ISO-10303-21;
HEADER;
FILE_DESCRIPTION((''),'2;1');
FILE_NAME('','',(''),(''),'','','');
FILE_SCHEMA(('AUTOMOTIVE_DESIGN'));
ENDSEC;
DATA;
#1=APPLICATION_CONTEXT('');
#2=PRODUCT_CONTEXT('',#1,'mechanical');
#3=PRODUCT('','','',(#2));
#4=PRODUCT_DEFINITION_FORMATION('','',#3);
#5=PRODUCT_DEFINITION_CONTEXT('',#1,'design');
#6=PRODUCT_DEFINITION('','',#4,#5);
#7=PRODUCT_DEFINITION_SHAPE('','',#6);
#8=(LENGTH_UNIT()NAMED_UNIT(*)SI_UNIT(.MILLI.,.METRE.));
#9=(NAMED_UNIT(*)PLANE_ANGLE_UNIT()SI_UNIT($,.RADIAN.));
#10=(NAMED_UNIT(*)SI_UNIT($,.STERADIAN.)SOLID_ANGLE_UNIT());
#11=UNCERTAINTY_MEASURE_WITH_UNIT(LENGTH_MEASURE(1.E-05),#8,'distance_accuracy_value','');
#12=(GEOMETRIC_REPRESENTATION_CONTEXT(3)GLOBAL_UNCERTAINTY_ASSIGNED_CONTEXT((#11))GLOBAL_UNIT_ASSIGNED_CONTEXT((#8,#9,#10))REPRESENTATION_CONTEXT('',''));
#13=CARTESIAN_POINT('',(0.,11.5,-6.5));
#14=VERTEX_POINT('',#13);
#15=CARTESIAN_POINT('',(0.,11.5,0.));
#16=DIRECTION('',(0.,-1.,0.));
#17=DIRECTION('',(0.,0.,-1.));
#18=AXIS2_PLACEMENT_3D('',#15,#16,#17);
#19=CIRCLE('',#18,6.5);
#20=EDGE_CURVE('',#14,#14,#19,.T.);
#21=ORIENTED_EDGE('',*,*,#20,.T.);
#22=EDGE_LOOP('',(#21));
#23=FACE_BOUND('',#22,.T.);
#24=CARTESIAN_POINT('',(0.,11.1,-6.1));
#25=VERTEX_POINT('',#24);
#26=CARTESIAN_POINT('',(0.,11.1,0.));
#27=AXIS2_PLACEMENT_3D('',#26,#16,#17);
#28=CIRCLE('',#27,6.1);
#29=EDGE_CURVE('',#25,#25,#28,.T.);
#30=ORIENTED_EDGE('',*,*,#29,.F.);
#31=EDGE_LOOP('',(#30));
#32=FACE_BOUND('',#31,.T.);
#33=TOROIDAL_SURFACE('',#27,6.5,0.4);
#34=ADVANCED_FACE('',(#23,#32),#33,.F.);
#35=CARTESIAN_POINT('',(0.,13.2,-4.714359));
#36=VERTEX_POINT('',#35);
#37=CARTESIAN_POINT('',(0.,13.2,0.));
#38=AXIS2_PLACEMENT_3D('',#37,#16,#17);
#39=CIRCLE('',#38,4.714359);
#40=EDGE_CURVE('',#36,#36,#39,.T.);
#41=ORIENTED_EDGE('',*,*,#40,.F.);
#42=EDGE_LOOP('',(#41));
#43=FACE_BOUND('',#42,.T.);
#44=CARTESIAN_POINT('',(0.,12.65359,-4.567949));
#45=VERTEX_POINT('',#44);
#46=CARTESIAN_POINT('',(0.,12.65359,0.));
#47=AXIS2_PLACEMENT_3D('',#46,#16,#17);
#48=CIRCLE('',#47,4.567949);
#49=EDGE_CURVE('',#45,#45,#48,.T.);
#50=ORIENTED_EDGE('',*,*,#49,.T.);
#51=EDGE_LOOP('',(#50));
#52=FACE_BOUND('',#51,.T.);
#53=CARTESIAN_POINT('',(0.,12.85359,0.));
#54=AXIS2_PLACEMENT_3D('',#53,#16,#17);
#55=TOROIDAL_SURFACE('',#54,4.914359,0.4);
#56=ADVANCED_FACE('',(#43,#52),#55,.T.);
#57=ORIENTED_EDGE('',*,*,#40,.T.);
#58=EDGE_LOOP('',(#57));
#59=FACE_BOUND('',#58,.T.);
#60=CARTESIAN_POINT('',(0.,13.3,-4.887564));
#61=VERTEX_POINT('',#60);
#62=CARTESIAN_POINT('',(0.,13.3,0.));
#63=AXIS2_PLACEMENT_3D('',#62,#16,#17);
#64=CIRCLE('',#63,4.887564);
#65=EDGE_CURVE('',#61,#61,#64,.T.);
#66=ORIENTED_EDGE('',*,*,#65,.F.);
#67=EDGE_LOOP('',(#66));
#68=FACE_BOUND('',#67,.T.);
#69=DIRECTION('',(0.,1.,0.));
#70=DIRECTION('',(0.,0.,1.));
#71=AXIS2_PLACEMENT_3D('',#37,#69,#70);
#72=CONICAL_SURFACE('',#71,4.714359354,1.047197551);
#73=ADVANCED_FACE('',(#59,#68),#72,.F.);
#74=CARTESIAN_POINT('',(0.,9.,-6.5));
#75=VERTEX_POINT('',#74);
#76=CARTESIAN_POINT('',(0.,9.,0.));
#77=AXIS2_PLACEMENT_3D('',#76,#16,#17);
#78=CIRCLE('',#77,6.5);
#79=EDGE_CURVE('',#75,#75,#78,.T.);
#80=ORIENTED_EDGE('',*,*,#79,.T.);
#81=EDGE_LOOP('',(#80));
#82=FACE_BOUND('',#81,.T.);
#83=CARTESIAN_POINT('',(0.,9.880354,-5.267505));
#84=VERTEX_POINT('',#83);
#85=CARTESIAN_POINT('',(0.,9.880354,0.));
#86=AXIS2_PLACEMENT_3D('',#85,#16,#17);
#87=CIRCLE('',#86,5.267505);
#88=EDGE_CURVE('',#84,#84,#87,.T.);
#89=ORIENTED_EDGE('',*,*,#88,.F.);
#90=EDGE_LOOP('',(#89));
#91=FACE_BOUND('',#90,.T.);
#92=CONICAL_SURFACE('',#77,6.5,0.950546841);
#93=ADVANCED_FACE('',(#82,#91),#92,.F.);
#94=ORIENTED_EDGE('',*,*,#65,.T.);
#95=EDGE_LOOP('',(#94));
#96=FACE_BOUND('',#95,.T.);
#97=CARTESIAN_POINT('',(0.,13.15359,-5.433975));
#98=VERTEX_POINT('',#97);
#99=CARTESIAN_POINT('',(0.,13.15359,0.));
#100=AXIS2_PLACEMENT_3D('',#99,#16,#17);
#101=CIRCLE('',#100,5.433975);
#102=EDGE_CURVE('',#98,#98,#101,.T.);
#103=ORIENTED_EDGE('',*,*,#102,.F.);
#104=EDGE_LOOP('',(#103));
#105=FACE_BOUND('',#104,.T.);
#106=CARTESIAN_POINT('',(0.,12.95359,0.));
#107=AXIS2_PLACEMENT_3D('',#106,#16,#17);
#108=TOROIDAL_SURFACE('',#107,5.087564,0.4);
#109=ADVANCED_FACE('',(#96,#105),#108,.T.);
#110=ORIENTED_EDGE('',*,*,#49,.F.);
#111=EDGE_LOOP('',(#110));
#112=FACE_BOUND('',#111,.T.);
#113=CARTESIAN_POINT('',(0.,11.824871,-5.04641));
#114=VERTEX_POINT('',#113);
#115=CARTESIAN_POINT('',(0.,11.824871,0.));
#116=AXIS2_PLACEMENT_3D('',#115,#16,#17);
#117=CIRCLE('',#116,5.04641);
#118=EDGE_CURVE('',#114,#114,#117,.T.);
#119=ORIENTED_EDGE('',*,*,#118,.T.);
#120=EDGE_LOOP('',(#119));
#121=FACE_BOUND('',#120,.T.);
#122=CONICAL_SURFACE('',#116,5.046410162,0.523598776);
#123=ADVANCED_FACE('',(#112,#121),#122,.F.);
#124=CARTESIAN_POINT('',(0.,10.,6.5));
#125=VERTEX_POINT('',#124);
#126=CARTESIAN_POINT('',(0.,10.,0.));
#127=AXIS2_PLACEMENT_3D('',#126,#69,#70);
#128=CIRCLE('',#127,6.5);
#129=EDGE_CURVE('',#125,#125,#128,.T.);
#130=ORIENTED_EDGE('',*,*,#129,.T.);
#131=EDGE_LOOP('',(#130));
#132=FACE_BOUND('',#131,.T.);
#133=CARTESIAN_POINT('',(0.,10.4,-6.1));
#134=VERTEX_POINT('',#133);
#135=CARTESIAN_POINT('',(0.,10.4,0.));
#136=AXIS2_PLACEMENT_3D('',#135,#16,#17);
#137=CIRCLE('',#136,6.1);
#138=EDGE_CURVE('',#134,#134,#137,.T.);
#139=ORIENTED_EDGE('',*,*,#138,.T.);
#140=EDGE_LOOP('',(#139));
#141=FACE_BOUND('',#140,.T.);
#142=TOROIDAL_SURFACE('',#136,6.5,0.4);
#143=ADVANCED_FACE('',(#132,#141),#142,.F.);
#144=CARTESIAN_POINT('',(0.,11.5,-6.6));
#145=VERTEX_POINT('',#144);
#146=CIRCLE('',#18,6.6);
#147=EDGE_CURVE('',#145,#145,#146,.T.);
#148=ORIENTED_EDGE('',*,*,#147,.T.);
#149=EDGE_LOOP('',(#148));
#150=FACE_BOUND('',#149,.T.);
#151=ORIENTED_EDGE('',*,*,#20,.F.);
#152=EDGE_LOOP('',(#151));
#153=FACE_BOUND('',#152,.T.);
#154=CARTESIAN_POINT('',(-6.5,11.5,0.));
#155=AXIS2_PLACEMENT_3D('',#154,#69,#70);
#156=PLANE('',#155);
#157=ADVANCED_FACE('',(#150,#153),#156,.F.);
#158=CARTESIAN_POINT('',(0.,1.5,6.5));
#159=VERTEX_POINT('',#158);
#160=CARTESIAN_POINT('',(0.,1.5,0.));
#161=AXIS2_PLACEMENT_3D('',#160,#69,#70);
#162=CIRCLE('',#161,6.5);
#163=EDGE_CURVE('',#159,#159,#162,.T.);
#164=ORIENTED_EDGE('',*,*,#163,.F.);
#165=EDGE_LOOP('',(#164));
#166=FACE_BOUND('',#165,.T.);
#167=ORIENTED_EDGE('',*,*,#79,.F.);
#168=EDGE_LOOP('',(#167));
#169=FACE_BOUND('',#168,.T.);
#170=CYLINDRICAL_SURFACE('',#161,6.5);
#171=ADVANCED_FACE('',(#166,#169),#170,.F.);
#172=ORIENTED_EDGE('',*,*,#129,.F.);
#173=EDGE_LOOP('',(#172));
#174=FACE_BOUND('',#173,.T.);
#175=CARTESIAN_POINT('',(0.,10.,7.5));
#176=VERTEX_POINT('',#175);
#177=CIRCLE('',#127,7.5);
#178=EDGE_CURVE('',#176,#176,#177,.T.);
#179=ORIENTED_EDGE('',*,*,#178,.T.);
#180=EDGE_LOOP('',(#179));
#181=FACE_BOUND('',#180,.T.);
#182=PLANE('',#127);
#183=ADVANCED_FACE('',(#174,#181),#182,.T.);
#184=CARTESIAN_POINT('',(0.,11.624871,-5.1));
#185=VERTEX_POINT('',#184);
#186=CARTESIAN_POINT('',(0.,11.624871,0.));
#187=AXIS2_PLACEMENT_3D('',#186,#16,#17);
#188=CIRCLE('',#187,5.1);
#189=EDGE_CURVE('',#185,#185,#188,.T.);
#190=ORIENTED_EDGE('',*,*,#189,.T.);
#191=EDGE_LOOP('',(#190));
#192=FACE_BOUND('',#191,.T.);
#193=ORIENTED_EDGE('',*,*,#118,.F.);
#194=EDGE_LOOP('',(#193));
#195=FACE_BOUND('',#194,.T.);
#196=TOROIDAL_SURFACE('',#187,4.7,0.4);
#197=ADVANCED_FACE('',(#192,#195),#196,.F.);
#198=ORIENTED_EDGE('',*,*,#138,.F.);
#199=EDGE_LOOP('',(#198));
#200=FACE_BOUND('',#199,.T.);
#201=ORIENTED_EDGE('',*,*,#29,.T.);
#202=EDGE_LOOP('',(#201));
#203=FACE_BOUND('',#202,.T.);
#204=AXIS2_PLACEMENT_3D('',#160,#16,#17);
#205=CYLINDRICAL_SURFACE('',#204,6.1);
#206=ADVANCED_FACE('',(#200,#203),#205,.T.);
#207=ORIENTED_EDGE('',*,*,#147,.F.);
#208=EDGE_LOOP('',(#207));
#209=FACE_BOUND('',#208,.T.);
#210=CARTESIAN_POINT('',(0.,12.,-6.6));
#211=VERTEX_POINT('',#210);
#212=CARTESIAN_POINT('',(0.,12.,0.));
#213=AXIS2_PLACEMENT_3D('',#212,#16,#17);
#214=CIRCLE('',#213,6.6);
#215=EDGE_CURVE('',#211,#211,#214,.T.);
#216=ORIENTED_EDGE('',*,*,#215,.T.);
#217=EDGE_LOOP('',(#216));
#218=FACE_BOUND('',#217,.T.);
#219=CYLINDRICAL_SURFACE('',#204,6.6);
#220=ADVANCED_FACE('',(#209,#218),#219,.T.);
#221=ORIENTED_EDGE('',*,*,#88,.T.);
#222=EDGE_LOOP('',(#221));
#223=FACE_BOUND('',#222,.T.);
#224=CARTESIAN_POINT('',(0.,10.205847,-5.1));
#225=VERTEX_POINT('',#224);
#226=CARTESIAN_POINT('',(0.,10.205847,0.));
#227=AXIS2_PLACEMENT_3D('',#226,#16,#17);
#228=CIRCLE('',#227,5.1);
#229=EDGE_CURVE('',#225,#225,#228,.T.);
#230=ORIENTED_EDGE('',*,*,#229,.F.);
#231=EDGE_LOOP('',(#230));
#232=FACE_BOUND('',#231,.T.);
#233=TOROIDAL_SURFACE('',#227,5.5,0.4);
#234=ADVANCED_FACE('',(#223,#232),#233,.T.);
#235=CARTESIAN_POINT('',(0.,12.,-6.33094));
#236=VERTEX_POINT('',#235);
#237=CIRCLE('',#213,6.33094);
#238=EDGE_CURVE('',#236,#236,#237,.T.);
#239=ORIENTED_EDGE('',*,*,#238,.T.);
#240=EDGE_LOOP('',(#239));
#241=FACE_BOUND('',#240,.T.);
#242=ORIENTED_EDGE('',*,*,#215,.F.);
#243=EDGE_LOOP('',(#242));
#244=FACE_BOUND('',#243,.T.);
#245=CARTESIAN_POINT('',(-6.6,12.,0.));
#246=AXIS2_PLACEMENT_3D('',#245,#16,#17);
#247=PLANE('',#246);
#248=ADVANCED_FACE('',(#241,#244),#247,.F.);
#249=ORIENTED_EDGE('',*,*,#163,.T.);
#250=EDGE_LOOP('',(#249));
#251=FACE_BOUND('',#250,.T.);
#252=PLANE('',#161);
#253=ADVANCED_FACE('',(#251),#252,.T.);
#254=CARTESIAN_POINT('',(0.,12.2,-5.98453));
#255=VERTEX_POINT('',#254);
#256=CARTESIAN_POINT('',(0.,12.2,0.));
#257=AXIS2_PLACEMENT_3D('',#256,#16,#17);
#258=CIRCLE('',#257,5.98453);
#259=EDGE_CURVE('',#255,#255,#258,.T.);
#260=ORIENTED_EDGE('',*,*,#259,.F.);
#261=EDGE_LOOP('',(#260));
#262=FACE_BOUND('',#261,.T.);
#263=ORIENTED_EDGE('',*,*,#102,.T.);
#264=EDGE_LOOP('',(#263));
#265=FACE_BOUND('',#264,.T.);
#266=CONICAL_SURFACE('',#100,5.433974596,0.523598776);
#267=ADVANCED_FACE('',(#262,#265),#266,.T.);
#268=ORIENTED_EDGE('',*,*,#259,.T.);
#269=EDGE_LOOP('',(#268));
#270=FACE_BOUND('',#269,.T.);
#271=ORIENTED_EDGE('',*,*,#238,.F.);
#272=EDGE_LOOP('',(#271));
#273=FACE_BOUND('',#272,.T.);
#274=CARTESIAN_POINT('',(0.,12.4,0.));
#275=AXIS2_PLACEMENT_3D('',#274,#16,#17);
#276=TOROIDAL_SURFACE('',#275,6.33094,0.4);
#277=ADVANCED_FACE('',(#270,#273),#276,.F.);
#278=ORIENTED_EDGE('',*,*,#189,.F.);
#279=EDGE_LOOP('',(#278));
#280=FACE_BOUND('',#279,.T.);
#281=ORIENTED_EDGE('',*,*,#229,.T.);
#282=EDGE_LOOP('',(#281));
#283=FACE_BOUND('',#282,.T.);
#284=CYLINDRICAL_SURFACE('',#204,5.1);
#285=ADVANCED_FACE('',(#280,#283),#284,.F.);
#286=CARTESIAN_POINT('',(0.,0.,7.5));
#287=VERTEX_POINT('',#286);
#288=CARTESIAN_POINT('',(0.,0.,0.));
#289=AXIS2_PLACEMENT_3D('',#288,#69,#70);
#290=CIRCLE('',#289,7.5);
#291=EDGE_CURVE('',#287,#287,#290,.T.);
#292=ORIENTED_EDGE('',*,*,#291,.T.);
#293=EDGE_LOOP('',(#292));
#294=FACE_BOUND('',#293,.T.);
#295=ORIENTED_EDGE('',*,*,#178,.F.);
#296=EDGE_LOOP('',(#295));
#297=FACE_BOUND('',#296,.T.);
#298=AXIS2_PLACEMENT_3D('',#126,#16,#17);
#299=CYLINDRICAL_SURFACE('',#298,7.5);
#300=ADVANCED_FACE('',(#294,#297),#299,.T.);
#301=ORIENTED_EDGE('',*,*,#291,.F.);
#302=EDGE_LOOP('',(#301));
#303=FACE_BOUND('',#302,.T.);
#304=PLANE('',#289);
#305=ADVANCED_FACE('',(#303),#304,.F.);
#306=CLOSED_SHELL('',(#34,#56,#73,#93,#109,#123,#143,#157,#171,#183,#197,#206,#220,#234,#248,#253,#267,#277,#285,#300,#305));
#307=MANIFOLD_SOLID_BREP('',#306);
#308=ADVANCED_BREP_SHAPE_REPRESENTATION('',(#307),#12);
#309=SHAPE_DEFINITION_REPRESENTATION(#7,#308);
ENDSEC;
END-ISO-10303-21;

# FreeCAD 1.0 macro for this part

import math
import FreeCAD as App
import Part
import Sketcher
Q = App.Units.Quantity

doc = App.newDocument("Part")
body = doc.addObject("PartDesign::Body", "Body")

# Sketch on XZ plane
sketch1 = body.newObject("Sketcher::SketchObject", "Sketch")
sketch1.AttachmentSupport = (doc.getObject("XZ_Plane"), [""])
sketch1.MapMode = "FlatFace"
sketch1.addGeometry(Part.Circle(App.Vector(0, 0, 0), App.Vector(0, 0, 1), 7.5), False)
sketch1.addConstraint([
    Sketcher.Constraint("Coincident", 0, 3, -1, 1),
    Sketcher.Constraint("Diameter", 0, Q("15 mm")),
])
pad1 = body.newObject("PartDesign::Pad", "Pad")
pad1.Profile = sketch1
pad1.Length = 10
pad1.Reversed = True

# Sketch on XZ plane
sketch2 = body.newObject("Sketcher::SketchObject", "Sketch001")
sketch2.AttachmentSupport = (doc.getObject("XZ_Plane"), [""])
sketch2.MapMode = "FlatFace"
sketch2.AttachmentOffset = App.Placement(App.Vector(0, 0, -10), App.Rotation())
sketch2.addGeometry(Part.Circle(App.Vector(0, 0, 0), App.Vector(0, 0, 1), 6.5), False)
sketch2.addConstraint([
    Sketcher.Constraint("Coincident", 0, 3, -1, 1),
    Sketcher.Constraint("Diameter", 0, Q("13 mm")),
])
pocket1 = body.newObject("PartDesign::Pocket", "Pocket")
pocket1.Profile = sketch2
pocket1.Length = 8.5
pocket1.Reversed = True

# Sketch on XY plane
sketch3 = body.newObject("Sketcher::SketchObject", "Sketch002")
sketch3.AttachmentSupport = (doc.getObject("XY_Plane"), [""])
sketch3.MapMode = "FlatFace"
sketch3.addGeometry([
    Part.LineSegment(App.Vector(-6.5, 10, 0), App.Vector(-7, 10, 0)),  # 0
    Part.LineSegment(App.Vector(-7, 10, 0), App.Vector(-7, 9, 0)),  # 1
    Part.LineSegment(App.Vector(-7, 9, 0), App.Vector(-6.5, 9, 0)),  # 2
    Part.LineSegment(App.Vector(-6.5, 9, 0), App.Vector(-5.267505, 9.880354, 0)),  # 3
    Part.ArcOfCircle(Part.Circle(App.Vector(-5.5, 10.205847, 0), App.Vector(0, 0, 1), 0.4), math.radians(-54.462322), math.radians(0)),  # 4
    Part.LineSegment(App.Vector(-5.1, 10.205847, 0), App.Vector(-5.1, 11.624871, 0)),  # 5
    Part.ArcOfCircle(Part.Circle(App.Vector(-4.7, 11.624871, 0), App.Vector(0, 0, 1), 0.4), math.radians(150), math.radians(180)),  # 6
    Part.LineSegment(App.Vector(-5.04641, 11.824871, 0), App.Vector(-4.567949, 12.65359, 0)),  # 7
    Part.ArcOfCircle(Part.Circle(App.Vector(-4.914359, 12.85359, 0), App.Vector(0, 0, 1), 0.4), math.radians(-30), math.radians(60)),  # 8
    Part.LineSegment(App.Vector(-4.714359, 13.2, 0), App.Vector(-4.887564, 13.3, 0)),  # 9
    Part.ArcOfCircle(Part.Circle(App.Vector(-5.087564, 12.95359, 0), App.Vector(0, 0, 1), 0.4), math.radians(60), math.radians(150)),  # 10
    Part.LineSegment(App.Vector(-5.433975, 13.15359, 0), App.Vector(-5.98453, 12.2, 0)),  # 11
    Part.ArcOfCircle(Part.Circle(App.Vector(-6.33094, 12.4, 0), App.Vector(0, 0, 1), 0.4), math.radians(-90), math.radians(-30)),  # 12
    Part.LineSegment(App.Vector(-6.33094, 12, 0), App.Vector(-6.6, 12, 0)),  # 13
    Part.LineSegment(App.Vector(-6.6, 12, 0), App.Vector(-6.6, 11.5, 0)),  # 14
    Part.LineSegment(App.Vector(-6.6, 11.5, 0), App.Vector(-6.5, 11.5, 0)),  # 15
    Part.ArcOfCircle(Part.Circle(App.Vector(-6.5, 11.1, 0), App.Vector(0, 0, 1), 0.4), math.radians(0), math.radians(90)),  # 16
    Part.LineSegment(App.Vector(-6.1, 11.1, 0), App.Vector(-6.1, 10.4, 0)),  # 17
    Part.ArcOfCircle(Part.Circle(App.Vector(-6.5, 10.4, 0), App.Vector(0, 0, 1), 0.4), math.radians(-90), math.radians(0)),  # 18
], False)
sketch3.addConstraint([
    Sketcher.Constraint("Coincident", 0, 2, 1, 1),
    Sketcher.Constraint("Coincident", 1, 2, 2, 1),
    Sketcher.Constraint("Coincident", 2, 2, 3, 1),
    Sketcher.Constraint("Tangent", 3, 2, 4, 1),
    Sketcher.Constraint("Tangent", 4, 2, 5, 1),
    Sketcher.Constraint("Tangent", 5, 2, 6, 2),
    Sketcher.Constraint("Tangent", 6, 1, 7, 1),
    Sketcher.Constraint("Tangent", 7, 2, 8, 1),
    Sketcher.Constraint("Tangent", 8, 2, 9, 1),
    Sketcher.Constraint("Tangent", 9, 2, 10, 1),
    Sketcher.Constraint("Tangent", 10, 2, 11, 1),
    Sketcher.Constraint("Tangent", 11, 2, 12, 2),
    Sketcher.Constraint("Tangent", 12, 1, 13, 1),
    Sketcher.Constraint("Coincident", 13, 2, 14, 1),
    Sketcher.Constraint("Coincident", 14, 2, 15, 1),
    Sketcher.Constraint("Tangent", 15, 2, 16, 2),
    Sketcher.Constraint("Tangent", 16, 1, 17, 1),
    Sketcher.Constraint("Tangent", 17, 2, 18, 2),
    Sketcher.Constraint("Tangent", 18, 1, 0, 1),
    Sketcher.Constraint("Horizontal", 0),
    Sketcher.Constraint("Vertical", 1),
    Sketcher.Constraint("Horizontal", 2),
    Sketcher.Constraint("Vertical", 5),
    Sketcher.Constraint("Horizontal", 13),
    Sketcher.Constraint("Vertical", 14),
    Sketcher.Constraint("Horizontal", 15),
    Sketcher.Constraint("Vertical", 17),
    Sketcher.Constraint("Equal", 4, 6),
    Sketcher.Constraint("Equal", 6, 8),
    Sketcher.Constraint("Equal", 8, 10),
    Sketcher.Constraint("Equal", 10, 12),
    Sketcher.Constraint("Equal", 12, 16),
    Sketcher.Constraint("Equal", 16, 18),
    Sketcher.Constraint("Perpendicular", 7, 9),
    Sketcher.Constraint("Perpendicular", 9, 11),
    Sketcher.Constraint("Vertical", 18, 3, 2, 2),
    Sketcher.Constraint("Equal", 2, 14),
    Sketcher.Constraint("Radius", 4, Q("0.4 mm")),
    Sketcher.Constraint("DistanceY", 1, 2, 1, 1, Q("1 mm")),
    Sketcher.Constraint("Angle", 7, Q("60 deg")),
    Sketcher.Constraint("DistanceX", 0, 2, 0, 1, Q("0.5 mm")),
    Sketcher.Constraint("DistanceX", 15, 1, 15, 2, Q("0.1 mm")),
    Sketcher.Constraint("DistanceY", 17, 2, 17, 1, Q("0.7 mm")),
    Sketcher.Constraint("DistanceX", 0, 2, -1, 1, Q("7 mm")),
    Sketcher.Constraint("DistanceY", -1, 1, 0, 2, Q("10 mm")),
    Sketcher.Constraint("DistanceX", 16, 3, 4, 3, Q("1 mm")),
    Sketcher.Constraint("Distance", 9, Q("0.2 mm")),
    Sketcher.Constraint("DistanceY", -1, 1, 8, 2, Q("13.2 mm")),
    Sketcher.Constraint("DistanceX", 13, 2, 13, 1, Q("0.26906 mm")),
    Sketcher.Constraint("DistanceY", 5, 1, 5, 2, Q("1.419024 mm")),
])
revolution = body.newObject("PartDesign::Revolution", "Revolution")
revolution.Profile = sketch3
revolution.ReferenceAxis = (sketch3, ["V_Axis"])
revolution.Angle = 360

doc.recompute()
